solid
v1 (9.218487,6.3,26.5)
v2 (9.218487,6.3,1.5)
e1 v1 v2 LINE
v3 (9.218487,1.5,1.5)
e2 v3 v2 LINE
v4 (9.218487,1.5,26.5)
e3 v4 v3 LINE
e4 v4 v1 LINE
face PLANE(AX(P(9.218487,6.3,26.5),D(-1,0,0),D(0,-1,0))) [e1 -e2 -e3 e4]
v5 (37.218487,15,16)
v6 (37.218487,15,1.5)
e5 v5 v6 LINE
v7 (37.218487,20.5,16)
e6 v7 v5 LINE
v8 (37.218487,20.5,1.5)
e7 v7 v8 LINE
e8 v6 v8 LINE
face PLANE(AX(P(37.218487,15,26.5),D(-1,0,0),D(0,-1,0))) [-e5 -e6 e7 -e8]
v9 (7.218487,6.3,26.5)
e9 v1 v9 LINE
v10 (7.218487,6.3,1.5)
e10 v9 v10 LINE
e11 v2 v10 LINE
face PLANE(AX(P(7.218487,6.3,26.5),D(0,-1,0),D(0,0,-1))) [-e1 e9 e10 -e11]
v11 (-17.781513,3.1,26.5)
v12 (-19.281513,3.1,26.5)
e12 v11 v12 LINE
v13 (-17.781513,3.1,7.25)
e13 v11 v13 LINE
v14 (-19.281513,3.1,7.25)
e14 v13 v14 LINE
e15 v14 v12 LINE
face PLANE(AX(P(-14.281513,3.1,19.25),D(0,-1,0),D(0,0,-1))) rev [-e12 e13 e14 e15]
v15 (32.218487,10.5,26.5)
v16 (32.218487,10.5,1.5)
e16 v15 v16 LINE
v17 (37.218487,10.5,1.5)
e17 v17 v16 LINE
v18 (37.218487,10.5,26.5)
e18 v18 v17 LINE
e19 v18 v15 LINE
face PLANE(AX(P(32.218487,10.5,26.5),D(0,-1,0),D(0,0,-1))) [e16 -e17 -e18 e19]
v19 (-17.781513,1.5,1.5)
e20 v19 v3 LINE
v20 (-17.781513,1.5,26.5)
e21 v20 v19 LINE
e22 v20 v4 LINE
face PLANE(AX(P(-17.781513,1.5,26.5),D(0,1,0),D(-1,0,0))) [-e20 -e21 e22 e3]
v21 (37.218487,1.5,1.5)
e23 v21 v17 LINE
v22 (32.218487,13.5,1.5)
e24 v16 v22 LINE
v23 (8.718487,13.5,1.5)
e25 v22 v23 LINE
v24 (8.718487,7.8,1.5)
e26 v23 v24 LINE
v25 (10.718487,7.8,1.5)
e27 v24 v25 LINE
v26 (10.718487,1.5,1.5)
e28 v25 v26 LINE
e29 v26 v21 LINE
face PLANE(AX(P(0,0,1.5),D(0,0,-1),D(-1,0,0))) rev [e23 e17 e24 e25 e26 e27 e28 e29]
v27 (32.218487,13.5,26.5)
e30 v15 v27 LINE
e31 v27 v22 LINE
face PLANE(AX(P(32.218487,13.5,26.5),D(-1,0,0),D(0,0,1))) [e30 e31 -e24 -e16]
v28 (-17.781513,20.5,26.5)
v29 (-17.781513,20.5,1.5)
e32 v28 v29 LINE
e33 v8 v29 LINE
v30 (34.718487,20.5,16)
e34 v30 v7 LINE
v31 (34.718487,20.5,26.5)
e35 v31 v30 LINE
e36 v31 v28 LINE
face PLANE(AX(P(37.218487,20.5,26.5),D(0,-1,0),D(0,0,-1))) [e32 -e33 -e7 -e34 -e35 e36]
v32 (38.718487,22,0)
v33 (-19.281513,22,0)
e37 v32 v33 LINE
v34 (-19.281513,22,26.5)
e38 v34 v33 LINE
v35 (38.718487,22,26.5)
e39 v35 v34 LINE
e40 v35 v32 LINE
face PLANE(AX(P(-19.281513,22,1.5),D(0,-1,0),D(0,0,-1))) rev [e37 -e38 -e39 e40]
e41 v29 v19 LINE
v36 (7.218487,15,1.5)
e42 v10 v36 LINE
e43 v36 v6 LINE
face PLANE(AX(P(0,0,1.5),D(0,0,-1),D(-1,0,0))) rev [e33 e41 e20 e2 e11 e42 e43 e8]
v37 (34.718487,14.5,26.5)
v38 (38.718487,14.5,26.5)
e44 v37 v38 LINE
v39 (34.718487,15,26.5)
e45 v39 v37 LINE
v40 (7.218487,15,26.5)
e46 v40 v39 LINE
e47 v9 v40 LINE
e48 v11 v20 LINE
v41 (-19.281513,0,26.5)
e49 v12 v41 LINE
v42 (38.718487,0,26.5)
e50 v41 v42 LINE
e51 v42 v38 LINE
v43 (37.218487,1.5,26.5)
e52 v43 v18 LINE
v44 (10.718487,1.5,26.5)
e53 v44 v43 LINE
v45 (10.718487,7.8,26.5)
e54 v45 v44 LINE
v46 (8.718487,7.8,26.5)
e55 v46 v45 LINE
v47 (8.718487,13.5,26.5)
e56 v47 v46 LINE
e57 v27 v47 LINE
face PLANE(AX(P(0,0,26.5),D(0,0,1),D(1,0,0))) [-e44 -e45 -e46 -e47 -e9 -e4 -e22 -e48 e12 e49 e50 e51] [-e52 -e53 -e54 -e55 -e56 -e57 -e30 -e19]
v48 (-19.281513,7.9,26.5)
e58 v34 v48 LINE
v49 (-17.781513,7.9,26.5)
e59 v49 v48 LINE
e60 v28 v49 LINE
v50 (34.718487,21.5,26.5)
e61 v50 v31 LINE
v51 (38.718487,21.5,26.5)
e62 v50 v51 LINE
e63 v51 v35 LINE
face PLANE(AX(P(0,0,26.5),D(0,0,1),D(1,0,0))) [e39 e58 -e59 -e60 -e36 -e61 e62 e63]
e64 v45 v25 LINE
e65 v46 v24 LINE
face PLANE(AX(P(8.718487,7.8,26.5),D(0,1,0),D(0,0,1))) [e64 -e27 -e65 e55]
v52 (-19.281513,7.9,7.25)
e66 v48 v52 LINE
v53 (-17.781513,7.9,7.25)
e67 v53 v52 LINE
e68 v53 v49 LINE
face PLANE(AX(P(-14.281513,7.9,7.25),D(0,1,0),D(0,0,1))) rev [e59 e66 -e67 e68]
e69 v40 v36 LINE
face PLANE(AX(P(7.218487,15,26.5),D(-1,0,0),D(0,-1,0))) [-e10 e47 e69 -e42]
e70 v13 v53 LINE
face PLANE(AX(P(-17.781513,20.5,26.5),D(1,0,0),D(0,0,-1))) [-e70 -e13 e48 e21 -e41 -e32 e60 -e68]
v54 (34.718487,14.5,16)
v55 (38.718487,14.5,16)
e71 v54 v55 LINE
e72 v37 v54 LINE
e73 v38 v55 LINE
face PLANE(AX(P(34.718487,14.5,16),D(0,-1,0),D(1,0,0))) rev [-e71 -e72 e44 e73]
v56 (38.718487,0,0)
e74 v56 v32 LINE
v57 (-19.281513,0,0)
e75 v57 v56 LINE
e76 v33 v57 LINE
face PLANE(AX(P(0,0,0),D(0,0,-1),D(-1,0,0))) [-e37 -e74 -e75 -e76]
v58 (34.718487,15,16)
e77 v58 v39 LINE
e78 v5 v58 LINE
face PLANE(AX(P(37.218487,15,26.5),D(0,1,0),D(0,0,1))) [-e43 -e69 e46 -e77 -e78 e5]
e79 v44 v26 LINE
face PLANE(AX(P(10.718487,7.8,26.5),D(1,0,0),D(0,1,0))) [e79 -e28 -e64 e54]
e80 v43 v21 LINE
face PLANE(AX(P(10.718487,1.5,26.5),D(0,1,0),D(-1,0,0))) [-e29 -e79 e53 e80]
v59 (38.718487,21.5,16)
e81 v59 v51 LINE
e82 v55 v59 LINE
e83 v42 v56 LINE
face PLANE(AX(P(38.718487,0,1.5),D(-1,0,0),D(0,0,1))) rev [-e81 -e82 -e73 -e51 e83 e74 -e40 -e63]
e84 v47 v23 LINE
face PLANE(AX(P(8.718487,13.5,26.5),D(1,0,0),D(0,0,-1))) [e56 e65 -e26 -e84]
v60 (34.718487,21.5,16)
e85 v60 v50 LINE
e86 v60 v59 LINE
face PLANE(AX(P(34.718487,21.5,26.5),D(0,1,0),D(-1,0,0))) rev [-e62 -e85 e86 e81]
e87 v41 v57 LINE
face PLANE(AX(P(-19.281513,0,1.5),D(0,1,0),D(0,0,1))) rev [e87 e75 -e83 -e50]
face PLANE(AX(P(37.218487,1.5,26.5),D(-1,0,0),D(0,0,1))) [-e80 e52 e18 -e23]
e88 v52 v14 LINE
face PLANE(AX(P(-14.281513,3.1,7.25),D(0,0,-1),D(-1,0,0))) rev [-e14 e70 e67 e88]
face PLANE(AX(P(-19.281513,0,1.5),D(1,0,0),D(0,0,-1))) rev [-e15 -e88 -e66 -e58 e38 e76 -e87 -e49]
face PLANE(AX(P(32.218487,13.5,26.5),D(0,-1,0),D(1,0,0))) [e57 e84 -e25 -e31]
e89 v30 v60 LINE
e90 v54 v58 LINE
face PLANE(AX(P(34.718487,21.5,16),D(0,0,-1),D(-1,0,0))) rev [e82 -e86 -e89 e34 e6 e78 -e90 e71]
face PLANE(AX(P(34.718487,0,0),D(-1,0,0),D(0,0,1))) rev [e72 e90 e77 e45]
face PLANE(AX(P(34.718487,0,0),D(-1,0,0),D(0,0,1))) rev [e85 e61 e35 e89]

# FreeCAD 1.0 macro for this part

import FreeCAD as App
import Part
import Sketcher
from FreeCAD import Vector

doc = App.newDocument("Part")
body = doc.addObject("PartDesign::Body", "Body")

# Sketch on XY plane
sketch1 = body.newObject("Sketcher::SketchObject", "Sketch")
sketch1.AttachmentSupport = (doc.getObject("XY_Plane"), [""])
sketch1.MapMode = "FlatFace"
sketch1.addGeometry([
    Part.LineSegment(Vector(-19, 22, 0), Vector(-19, 0, 0)),
    Part.LineSegment(Vector(-19, 0, 0), Vector(39, 0, 0)),
    Part.LineSegment(Vector(39, 0, 0), Vector(39, 22, 0)),
    Part.LineSegment(Vector(39, 22, 0), Vector(-19, 22, 0)),
], False)
sketch1.addConstraint([
    Sketcher.Constraint("Coincident", 0, 2, 1, 1),
    Sketcher.Constraint("Coincident", 1, 2, 2, 1),
    Sketcher.Constraint("Coincident", 2, 2, 3, 1),
    Sketcher.Constraint("Coincident", 3, 2, 0, 1),
    Sketcher.Constraint("Vertical", 0),
    Sketcher.Constraint("Horizontal", 1),
    Sketcher.Constraint("Vertical", 2),
    Sketcher.Constraint("Horizontal", 3),
    Sketcher.Constraint("PointOnObject", 0, 2, -1),
    Sketcher.Constraint("DistanceX", 1, 1, 1, 2, 58.0),
    Sketcher.Constraint("DistanceY", 0, 2, 0, 1, 22.0),
    Sketcher.Constraint("DistanceX", 0, 2, -1, 1, 19.281513),
])
pad1 = body.newObject("PartDesign::Pad", "Pad")
pad1.Profile = sketch1
pad1.Length = 1.5

# Sketch on XY plane
sketch2 = body.newObject("Sketcher::SketchObject", "Sketch001")
sketch2.AttachmentSupport = (doc.getObject("XY_Plane"), [""])
sketch2.MapMode = "FlatFace"
sketch2.AttachmentOffset = App.Placement(Vector(0, 0, 1.5), App.Rotation())
sketch2.addGeometry([
    Part.LineSegment(Vector(-19.3, 22, 0), Vector(-19.3, 0, 0)),  # 0
    Part.LineSegment(Vector(-19.3, 0, 0), Vector(38.7, 0, 0)),  # 1
    Part.LineSegment(Vector(38.7, 0, 0), Vector(38.7, 22, 0)),  # 2
    Part.LineSegment(Vector(38.7, 22, 0), Vector(-19.3, 22, 0)),  # 3
    Part.LineSegment(Vector(37.2, 10.5, 0), Vector(37.2, 1.5, 0)),  # 4
    Part.LineSegment(Vector(37.2, 1.5, 0), Vector(10.7, 1.5, 0)),  # 5
    Part.LineSegment(Vector(10.7, 1.5, 0), Vector(10.7, 7.8, 0)),  # 6
    Part.LineSegment(Vector(10.7, 7.8, 0), Vector(8.7, 7.8, 0)),  # 7
    Part.LineSegment(Vector(8.7, 7.8, 0), Vector(8.7, 13.5, 0)),  # 8
    Part.LineSegment(Vector(8.7, 13.5, 0), Vector(32.2, 13.5, 0)),  # 9
    Part.LineSegment(Vector(32.2, 13.5, 0), Vector(32.2, 10.5, 0)),  # 10
    Part.LineSegment(Vector(32.2, 10.5, 0), Vector(37.2, 10.5, 0)),  # 11
    Part.LineSegment(Vector(-17.8, 1.5, 0), Vector(-17.8, 20.5, 0)),  # 12
    Part.LineSegment(Vector(-17.8, 20.5, 0), Vector(37.2, 20.5, 0)),  # 13
    Part.LineSegment(Vector(37.2, 20.5, 0), Vector(37.2, 15, 0)),  # 14
    Part.LineSegment(Vector(37.2, 15, 0), Vector(7.2, 15, 0)),  # 15
    Part.LineSegment(Vector(7.2, 15, 0), Vector(7.2, 6.3, 0)),  # 16
    Part.LineSegment(Vector(7.2, 6.3, 0), Vector(9.2, 6.3, 0)),  # 17
    Part.LineSegment(Vector(9.2, 6.3, 0), Vector(9.2, 1.5, 0)),  # 18
    Part.LineSegment(Vector(9.2, 1.5, 0), Vector(-17.8, 1.5, 0)),  # 19
], False)
sketch2.addConstraint([
    Sketcher.Constraint("Coincident", 0, 2, 1, 1),
    Sketcher.Constraint("Coincident", 1, 2, 2, 1),
    Sketcher.Constraint("Coincident", 2, 2, 3, 1),
    Sketcher.Constraint("Coincident", 3, 2, 0, 1),
    Sketcher.Constraint("Coincident", 4, 2, 5, 1),
    Sketcher.Constraint("Coincident", 5, 2, 6, 1),
    Sketcher.Constraint("Coincident", 6, 2, 7, 1),
    Sketcher.Constraint("Coincident", 7, 2, 8, 1),
    Sketcher.Constraint("Coincident", 8, 2, 9, 1),
    Sketcher.Constraint("Coincident", 9, 2, 10, 1),
    Sketcher.Constraint("Coincident", 10, 2, 11, 1),
    Sketcher.Constraint("Coincident", 11, 2, 4, 1),
    Sketcher.Constraint("Coincident", 12, 2, 13, 1),
    Sketcher.Constraint("Coincident", 13, 2, 14, 1),
    Sketcher.Constraint("Coincident", 14, 2, 15, 1),
    Sketcher.Constraint("Coincident", 15, 2, 16, 1),
    Sketcher.Constraint("Coincident", 16, 2, 17, 1),
    Sketcher.Constraint("Coincident", 17, 2, 18, 1),
    Sketcher.Constraint("Coincident", 18, 2, 19, 1),
    Sketcher.Constraint("Coincident", 19, 2, 12, 1),
    Sketcher.Constraint("Vertical", 0),
    Sketcher.Constraint("Horizontal", 1),
    Sketcher.Constraint("Vertical", 2),
    Sketcher.Constraint("Horizontal", 3),
    Sketcher.Constraint("Vertical", 4),
    Sketcher.Constraint("Horizontal", 5),
    Sketcher.Constraint("Vertical", 6),
    Sketcher.Constraint("Horizontal", 7),
    Sketcher.Constraint("Vertical", 8),
    Sketcher.Constraint("Horizontal", 9),
    Sketcher.Constraint("Vertical", 10),
    Sketcher.Constraint("Horizontal", 11),
    Sketcher.Constraint("Vertical", 12),
    Sketcher.Constraint("Horizontal", 13),
    Sketcher.Constraint("Vertical", 14),
    Sketcher.Constraint("Horizontal", 15),
    Sketcher.Constraint("Vertical", 16),
    Sketcher.Constraint("Horizontal", 17),
    Sketcher.Constraint("Vertical", 18),
    Sketcher.Constraint("Horizontal", 19),
    Sketcher.Constraint("PointOnObject", 0, 2, -1),
    Sketcher.Constraint("Horizontal", 5, 2, 18, 2),
    Sketcher.Constraint("Vertical", 11, 2, 13, 2),
    Sketcher.Constraint("Equal", 7, 17),
    Sketcher.Constraint("DistanceX", 1, 1, 1, 2, 58.0),
    Sketcher.Constraint("DistanceX", 7, 2, 7, 1, 2.0),
    Sketcher.Constraint("DistanceX", 11, 1, 11, 2, 5.0),
    Sketcher.Constraint("DistanceX", 13, 1, 13, 2, 55.0),
    Sketcher.Constraint("DistanceX", 15, 2, 15, 1, 30.0),
    Sketcher.Constraint("DistanceY", 0, 2, 0, 1, 22.0),
    Sketcher.Constraint("DistanceY", 4, 2, 4, 1, 9.0),
    Sketcher.Constraint("DistanceY", 10, 2, 10, 1, 3.0),
    Sketcher.Constraint("DistanceY", 12, 1, 12, 2, 19.0),
    Sketcher.Constraint("DistanceX", 5, 2, 5, 1, 26.5),
    Sketcher.Constraint("DistanceY", 6, 1, 6, 2, 6.3),
    Sketcher.Constraint("DistanceY", 14, 2, 14, 1, 5.5),
    Sketcher.Constraint("DistanceY", 16, 2, 16, 1, 8.7),
    Sketcher.Constraint("DistanceY", -1, 1, 14, 2, 15.0),
    Sketcher.Constraint("DistanceX", 5, 2, 1, 2, 28.0),
    Sketcher.Constraint("DistanceX", 0, 2, -1, 1, 19.281513),
])
pad2 = body.newObject("PartDesign::Pad", "Pad001")
pad2.Profile = sketch2
pad2.Length = 25

# Sketch on YZ plane
sketch3 = body.newObject("Sketcher::SketchObject", "Sketch002")
sketch3.AttachmentSupport = (doc.getObject("YZ_Plane"), [""])
sketch3.MapMode = "FlatFace"
sketch3.AttachmentOffset = App.Placement(Vector(0, 0, -19.281513), App.Rotation())
sketch3.addGeometry([
    Part.LineSegment(Vector(3.1, 7.2, 0), Vector(3.1, 26.5, 0)),
    Part.LineSegment(Vector(3.1, 26.5, 0), Vector(7.9, 26.5, 0)),
    Part.LineSegment(Vector(7.9, 26.5, 0), Vector(7.9, 7.2, 0)),
    Part.LineSegment(Vector(7.9, 7.2, 0), Vector(3.1, 7.2, 0)),
], False)
sketch3.addConstraint([
    Sketcher.Constraint("Coincident", 0, 2, 1, 1),
    Sketcher.Constraint("Coincident", 1, 2, 2, 1),
    Sketcher.Constraint("Coincident", 2, 2, 3, 1),
    Sketcher.Constraint("Coincident", 3, 2, 0, 1),
    Sketcher.Constraint("Vertical", 0),
    Sketcher.Constraint("Horizontal", 1),
    Sketcher.Constraint("Vertical", 2),
    Sketcher.Constraint("Horizontal", 3),
    Sketcher.Constraint("DistanceX", 1, 1, 1, 2, 4.8),
    Sketcher.Constraint("DistanceY", 0, 1, 0, 2, 19.25),
    Sketcher.Constraint("DistanceX", -1, 1, 0, 2, 3.1),
    Sketcher.Constraint("DistanceY", -1, 1, 0, 2, 26.5),
])
pocket1 = body.newObject("PartDesign::Pocket", "Pocket")
pocket1.Profile = sketch3
pocket1.Length = 5
pocket1.Reversed = True

# Sketch on YZ plane
sketch4 = body.newObject("Sketcher::SketchObject", "Sketch003")
sketch4.AttachmentSupport = (doc.getObject("YZ_Plane"), [""])
sketch4.MapMode = "FlatFace"
sketch4.AttachmentOffset = App.Placement(Vector(0, 0, 38.718487), App.Rotation())
sketch4.addGeometry([
    Part.LineSegment(Vector(22, 26, 0), Vector(14, 26, 0)),
    Part.LineSegment(Vector(14, 26, 0), Vector(14, 16, 0)),
    Part.LineSegment(Vector(14, 16, 0), Vector(22, 16, 0)),
    Part.LineSegment(Vector(22, 16, 0), Vector(22, 26, 0)),
], False)
sketch4.addConstraint([
    Sketcher.Constraint("Coincident", 0, 2, 1, 1),
    Sketcher.Constraint("Coincident", 1, 2, 2, 1),
    Sketcher.Constraint("Coincident", 2, 2, 3, 1),
    Sketcher.Constraint("Coincident", 3, 2, 0, 1),
    Sketcher.Constraint("Horizontal", 0),
    Sketcher.Constraint("Vertical", 1),
    Sketcher.Constraint("Horizontal", 2),
    Sketcher.Constraint("Vertical", 3),
    Sketcher.Constraint("DistanceX", 0, 2, 0, 1, 7.0),
    Sketcher.Constraint("DistanceY", 1, 2, 1, 1, 10.5),
    Sketcher.Constraint("DistanceY", -1, 1, 1, 2, 16.0),
    Sketcher.Constraint("DistanceX", -1, 1, 0, 2, 14.5),
])
pocket2 = body.newObject("PartDesign::Pocket", "Pocket001")
pocket2.Profile = sketch4
pocket2.Length = 4

doc.recompute()
